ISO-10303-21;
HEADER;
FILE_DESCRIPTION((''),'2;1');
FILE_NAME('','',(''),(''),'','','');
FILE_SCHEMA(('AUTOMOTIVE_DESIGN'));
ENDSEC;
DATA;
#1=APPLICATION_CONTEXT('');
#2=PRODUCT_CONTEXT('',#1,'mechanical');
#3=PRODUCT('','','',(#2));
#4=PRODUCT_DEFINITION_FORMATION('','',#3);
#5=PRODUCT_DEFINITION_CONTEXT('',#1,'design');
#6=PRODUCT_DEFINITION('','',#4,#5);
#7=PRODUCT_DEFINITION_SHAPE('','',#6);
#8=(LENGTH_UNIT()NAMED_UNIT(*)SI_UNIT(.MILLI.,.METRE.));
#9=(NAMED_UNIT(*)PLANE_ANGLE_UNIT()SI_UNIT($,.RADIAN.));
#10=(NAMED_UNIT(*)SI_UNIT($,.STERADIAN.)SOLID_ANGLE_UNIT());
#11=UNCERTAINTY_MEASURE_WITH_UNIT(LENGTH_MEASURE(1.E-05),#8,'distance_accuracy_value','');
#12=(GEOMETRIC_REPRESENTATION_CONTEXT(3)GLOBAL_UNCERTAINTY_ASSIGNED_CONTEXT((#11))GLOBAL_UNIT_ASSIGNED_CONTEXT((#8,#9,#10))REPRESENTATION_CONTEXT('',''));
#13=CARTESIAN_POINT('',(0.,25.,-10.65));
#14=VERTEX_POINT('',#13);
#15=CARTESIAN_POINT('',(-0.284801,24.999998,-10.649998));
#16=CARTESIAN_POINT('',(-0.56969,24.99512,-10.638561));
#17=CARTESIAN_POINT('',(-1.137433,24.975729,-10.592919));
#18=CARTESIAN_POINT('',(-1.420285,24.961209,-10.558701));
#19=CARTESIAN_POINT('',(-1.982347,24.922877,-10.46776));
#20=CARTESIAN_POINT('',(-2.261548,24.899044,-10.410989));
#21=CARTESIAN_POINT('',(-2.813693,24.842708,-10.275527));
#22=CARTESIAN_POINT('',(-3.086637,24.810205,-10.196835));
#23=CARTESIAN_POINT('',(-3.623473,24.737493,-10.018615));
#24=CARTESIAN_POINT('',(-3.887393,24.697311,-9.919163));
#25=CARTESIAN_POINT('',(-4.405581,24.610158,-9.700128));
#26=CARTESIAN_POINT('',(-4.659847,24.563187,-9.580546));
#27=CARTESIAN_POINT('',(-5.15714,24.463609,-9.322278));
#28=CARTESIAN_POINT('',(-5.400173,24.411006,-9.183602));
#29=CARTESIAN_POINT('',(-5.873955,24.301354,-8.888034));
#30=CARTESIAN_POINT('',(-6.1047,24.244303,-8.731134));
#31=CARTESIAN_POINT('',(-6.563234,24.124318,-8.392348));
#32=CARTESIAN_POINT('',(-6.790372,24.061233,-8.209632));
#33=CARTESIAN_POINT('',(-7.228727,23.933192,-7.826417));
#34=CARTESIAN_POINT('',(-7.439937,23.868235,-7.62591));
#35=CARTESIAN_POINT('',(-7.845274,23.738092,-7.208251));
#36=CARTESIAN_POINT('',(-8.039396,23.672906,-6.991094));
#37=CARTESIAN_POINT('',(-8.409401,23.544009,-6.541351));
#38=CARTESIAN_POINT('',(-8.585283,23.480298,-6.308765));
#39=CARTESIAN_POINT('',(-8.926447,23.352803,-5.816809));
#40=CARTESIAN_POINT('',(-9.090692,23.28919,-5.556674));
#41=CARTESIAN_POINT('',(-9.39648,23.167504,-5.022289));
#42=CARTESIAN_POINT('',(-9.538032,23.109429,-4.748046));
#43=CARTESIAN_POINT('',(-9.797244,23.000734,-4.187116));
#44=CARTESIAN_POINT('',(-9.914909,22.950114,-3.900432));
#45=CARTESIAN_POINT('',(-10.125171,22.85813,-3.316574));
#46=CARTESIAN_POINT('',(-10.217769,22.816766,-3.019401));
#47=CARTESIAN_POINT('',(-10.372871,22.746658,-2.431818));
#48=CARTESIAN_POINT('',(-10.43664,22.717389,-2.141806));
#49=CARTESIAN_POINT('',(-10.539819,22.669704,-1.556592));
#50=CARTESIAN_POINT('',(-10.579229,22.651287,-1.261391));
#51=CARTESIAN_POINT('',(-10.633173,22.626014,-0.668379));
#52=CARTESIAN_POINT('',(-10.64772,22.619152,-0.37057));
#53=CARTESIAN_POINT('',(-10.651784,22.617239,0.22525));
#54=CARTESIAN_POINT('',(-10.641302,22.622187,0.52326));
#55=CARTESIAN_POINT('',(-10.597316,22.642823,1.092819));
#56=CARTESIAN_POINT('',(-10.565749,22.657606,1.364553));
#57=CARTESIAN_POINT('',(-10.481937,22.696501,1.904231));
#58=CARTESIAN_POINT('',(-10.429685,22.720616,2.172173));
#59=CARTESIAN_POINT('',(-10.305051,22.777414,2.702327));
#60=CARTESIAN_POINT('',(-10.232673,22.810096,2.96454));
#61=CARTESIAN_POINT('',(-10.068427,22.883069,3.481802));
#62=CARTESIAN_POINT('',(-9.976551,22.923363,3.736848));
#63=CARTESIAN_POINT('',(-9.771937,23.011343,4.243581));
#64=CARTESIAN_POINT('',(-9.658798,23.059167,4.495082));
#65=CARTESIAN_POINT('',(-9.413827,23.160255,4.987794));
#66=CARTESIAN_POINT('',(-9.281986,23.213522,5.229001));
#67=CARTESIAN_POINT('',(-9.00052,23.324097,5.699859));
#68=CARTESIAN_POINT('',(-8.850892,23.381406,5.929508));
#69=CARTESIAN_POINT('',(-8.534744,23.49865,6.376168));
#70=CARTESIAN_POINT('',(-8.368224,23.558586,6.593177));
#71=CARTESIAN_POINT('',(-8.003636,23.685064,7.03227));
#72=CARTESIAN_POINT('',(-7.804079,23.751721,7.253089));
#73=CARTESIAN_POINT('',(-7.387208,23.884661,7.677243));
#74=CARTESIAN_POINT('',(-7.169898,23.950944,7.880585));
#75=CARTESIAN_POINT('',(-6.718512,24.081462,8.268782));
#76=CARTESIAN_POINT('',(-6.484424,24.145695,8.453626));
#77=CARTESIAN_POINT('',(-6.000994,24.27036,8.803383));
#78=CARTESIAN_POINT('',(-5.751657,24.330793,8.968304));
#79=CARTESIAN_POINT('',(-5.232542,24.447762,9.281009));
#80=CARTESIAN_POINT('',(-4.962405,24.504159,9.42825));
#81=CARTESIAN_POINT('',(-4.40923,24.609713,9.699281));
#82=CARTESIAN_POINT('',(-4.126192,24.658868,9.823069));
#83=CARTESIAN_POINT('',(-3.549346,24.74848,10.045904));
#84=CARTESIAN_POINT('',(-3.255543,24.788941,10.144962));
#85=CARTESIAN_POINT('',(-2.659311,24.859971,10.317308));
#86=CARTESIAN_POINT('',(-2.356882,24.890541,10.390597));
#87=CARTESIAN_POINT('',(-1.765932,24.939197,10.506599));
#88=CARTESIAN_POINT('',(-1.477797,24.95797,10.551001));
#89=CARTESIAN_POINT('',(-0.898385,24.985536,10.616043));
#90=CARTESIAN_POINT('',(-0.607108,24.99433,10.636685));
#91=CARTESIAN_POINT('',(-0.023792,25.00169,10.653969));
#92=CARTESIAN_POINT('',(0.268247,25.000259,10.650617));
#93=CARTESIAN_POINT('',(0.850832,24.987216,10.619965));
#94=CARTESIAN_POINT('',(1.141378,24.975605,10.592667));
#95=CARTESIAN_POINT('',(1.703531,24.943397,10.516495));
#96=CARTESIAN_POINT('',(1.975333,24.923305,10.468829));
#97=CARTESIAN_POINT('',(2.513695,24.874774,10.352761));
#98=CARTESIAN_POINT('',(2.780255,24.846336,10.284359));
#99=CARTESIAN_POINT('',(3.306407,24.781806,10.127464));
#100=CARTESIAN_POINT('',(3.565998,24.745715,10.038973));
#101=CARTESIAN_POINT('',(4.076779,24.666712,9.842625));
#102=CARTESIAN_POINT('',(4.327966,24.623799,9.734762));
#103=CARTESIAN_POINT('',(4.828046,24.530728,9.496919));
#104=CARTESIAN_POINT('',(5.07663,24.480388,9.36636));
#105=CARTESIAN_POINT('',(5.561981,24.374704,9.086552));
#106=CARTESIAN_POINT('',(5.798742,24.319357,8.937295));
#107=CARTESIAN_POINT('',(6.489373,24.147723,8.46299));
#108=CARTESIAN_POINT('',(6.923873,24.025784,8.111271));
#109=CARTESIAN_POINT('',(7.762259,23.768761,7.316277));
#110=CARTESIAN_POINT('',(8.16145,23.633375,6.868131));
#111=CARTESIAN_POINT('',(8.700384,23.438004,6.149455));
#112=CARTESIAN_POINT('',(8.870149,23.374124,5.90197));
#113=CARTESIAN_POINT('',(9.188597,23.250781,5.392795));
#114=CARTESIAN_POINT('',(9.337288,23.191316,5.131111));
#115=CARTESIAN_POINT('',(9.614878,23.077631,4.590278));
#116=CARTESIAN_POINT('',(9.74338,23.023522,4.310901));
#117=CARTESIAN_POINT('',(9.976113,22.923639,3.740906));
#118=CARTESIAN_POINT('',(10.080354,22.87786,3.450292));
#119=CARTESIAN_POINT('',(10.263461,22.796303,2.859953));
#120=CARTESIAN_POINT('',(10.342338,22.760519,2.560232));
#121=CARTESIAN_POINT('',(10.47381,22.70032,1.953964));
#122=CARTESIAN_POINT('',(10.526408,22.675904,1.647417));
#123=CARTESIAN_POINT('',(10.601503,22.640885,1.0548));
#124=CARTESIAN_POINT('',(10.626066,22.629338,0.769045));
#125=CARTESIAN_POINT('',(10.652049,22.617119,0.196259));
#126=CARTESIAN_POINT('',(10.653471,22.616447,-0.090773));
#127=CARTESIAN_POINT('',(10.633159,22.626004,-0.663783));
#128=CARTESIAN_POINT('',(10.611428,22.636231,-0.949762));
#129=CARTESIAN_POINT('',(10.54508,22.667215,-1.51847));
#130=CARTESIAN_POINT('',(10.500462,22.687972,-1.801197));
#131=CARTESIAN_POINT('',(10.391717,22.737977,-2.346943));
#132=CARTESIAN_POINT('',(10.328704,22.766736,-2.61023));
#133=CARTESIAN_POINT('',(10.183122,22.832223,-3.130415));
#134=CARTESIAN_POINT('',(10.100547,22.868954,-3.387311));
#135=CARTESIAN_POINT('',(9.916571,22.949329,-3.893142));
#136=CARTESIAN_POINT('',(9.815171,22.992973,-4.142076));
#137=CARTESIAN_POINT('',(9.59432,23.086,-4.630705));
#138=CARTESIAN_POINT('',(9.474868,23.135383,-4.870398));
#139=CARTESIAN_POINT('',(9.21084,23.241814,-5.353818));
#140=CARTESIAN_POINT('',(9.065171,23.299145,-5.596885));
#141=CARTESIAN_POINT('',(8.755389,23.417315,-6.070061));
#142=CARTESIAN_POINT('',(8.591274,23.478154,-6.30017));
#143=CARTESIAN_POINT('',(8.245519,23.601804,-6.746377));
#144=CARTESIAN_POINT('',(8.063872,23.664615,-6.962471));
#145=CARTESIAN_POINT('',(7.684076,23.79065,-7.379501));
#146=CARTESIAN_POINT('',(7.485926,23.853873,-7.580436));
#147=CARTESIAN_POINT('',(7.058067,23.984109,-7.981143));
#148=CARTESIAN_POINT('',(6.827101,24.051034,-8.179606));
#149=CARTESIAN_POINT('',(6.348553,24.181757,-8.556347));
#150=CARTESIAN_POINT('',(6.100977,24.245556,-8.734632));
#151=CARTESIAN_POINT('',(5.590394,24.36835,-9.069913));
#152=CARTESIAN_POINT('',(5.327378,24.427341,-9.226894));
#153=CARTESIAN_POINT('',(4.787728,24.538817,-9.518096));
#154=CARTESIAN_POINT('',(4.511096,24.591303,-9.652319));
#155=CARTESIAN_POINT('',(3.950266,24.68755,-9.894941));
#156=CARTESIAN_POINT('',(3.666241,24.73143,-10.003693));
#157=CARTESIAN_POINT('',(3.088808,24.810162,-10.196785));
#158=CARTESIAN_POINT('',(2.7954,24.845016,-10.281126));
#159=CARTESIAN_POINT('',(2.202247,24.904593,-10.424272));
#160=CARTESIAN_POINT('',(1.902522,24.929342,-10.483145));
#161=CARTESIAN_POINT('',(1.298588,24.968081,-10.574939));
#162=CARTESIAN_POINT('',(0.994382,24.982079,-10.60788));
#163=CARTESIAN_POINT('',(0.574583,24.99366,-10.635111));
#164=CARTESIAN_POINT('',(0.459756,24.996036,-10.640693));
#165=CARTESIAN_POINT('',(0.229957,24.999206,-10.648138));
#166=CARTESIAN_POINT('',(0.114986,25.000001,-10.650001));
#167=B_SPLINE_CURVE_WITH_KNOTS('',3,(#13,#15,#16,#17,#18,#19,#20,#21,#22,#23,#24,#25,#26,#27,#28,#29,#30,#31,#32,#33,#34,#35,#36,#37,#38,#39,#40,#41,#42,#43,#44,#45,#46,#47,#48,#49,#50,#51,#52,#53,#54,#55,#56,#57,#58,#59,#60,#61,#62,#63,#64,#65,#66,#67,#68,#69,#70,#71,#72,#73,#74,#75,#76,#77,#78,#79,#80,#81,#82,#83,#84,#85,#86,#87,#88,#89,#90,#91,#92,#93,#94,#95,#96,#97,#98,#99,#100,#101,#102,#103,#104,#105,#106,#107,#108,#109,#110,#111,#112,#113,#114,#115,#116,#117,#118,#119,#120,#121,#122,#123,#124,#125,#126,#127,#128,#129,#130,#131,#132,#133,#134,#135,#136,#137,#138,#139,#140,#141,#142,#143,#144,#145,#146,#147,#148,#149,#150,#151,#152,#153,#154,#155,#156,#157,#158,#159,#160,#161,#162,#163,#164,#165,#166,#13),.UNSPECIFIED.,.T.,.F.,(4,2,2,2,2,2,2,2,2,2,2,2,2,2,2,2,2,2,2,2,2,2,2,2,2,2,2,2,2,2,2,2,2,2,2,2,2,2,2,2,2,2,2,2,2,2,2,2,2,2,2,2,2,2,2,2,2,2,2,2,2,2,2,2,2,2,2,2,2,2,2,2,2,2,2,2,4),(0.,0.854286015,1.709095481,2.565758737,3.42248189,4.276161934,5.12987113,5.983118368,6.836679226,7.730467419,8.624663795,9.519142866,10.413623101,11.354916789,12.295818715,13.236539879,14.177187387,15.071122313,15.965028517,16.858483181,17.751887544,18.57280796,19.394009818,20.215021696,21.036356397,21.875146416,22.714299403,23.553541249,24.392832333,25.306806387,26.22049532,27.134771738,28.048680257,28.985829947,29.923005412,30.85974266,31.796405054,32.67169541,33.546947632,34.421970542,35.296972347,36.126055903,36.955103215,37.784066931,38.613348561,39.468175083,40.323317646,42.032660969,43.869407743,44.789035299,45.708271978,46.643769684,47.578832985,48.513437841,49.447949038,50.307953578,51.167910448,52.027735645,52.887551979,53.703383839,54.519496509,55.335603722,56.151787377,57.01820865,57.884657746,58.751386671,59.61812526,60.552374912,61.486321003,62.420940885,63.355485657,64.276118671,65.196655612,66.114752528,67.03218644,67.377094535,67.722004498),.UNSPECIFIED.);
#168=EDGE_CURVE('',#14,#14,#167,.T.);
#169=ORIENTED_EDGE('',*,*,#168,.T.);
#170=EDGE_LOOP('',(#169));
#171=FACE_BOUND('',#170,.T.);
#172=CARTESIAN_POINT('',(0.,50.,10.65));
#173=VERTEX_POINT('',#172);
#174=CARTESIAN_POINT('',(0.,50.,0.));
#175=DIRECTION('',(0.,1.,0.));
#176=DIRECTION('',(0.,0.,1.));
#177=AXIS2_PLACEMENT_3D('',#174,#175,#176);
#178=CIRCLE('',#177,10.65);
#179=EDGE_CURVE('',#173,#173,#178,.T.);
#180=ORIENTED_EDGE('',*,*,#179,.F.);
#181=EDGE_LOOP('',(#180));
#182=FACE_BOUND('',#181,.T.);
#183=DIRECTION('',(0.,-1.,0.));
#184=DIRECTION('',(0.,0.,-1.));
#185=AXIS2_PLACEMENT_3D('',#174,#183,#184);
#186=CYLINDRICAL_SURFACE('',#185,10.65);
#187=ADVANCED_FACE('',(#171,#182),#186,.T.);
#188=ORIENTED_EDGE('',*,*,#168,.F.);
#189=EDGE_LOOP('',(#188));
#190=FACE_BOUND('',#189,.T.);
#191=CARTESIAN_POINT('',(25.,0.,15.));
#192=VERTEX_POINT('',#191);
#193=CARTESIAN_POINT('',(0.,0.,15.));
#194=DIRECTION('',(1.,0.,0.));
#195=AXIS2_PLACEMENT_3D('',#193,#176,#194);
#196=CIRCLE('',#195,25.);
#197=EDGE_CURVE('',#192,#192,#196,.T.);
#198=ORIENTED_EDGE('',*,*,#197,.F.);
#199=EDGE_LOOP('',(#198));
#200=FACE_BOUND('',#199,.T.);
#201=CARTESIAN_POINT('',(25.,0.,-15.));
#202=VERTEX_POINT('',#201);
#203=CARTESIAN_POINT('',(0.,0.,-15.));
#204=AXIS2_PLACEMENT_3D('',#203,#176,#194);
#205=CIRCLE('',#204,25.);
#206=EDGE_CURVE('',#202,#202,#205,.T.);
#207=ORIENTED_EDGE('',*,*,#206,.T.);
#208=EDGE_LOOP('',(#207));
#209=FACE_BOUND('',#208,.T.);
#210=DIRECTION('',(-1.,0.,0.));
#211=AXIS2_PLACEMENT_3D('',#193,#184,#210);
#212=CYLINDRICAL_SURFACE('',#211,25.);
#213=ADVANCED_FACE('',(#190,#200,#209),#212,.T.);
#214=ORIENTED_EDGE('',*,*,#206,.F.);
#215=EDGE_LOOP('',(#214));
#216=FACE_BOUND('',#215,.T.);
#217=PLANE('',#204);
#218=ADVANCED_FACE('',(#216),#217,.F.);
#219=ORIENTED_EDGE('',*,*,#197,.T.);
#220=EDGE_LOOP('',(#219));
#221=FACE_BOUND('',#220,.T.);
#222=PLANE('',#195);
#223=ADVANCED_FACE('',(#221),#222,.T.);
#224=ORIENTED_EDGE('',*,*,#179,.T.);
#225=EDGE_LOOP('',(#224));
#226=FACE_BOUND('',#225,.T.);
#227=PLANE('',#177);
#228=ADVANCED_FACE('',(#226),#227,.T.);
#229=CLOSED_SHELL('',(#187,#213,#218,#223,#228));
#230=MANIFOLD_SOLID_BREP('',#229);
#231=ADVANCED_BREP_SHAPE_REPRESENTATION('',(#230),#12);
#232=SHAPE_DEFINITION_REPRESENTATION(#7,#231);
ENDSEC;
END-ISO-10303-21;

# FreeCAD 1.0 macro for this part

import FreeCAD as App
import Part
import Sketcher
from FreeCAD import Vector

doc = App.newDocument("Part")
body = doc.addObject("PartDesign::Body", "Body")

# Sketch on XY plane
sketch1 = body.newObject("Sketcher::SketchObject", "Sketch")
sketch1.AttachmentSupport = (doc.getObject("XY_Plane"), [""])
sketch1.MapMode = "FlatFace"
sketch1.addGeometry(Part.Circle(Vector(0, 0, 0), Vector(0, 0, 1), 25), False)
sketch1.addConstraint([
    Sketcher.Constraint("Coincident", 0, 3, -1, 1),
    Sketcher.Constraint("Diameter", 0, 50.0),
])
pad1 = body.newObject("PartDesign::Pad", "Pad")
pad1.Profile = sketch1
pad1.Length = 30
pad1.Midplane = True

# Sketch on XZ plane
sketch2 = body.newObject("Sketcher::SketchObject", "Sketch001")
sketch2.AttachmentSupport = (doc.getObject("XZ_Plane"), [""])
sketch2.MapMode = "FlatFace"
sketch2.addGeometry(Part.Circle(Vector(0, 0, 0), Vector(0, 0, 1), 11), False)
sketch2.addConstraint([
    Sketcher.Constraint("Coincident", 0, 3, -1, 1),
    Sketcher.Constraint("Diameter", 0, 21.3),
])
pad2 = body.newObject("PartDesign::Pad", "Pad001")
pad2.Profile = sketch2
pad2.Length = 50
pad2.Reversed = True

doc.recompute()
